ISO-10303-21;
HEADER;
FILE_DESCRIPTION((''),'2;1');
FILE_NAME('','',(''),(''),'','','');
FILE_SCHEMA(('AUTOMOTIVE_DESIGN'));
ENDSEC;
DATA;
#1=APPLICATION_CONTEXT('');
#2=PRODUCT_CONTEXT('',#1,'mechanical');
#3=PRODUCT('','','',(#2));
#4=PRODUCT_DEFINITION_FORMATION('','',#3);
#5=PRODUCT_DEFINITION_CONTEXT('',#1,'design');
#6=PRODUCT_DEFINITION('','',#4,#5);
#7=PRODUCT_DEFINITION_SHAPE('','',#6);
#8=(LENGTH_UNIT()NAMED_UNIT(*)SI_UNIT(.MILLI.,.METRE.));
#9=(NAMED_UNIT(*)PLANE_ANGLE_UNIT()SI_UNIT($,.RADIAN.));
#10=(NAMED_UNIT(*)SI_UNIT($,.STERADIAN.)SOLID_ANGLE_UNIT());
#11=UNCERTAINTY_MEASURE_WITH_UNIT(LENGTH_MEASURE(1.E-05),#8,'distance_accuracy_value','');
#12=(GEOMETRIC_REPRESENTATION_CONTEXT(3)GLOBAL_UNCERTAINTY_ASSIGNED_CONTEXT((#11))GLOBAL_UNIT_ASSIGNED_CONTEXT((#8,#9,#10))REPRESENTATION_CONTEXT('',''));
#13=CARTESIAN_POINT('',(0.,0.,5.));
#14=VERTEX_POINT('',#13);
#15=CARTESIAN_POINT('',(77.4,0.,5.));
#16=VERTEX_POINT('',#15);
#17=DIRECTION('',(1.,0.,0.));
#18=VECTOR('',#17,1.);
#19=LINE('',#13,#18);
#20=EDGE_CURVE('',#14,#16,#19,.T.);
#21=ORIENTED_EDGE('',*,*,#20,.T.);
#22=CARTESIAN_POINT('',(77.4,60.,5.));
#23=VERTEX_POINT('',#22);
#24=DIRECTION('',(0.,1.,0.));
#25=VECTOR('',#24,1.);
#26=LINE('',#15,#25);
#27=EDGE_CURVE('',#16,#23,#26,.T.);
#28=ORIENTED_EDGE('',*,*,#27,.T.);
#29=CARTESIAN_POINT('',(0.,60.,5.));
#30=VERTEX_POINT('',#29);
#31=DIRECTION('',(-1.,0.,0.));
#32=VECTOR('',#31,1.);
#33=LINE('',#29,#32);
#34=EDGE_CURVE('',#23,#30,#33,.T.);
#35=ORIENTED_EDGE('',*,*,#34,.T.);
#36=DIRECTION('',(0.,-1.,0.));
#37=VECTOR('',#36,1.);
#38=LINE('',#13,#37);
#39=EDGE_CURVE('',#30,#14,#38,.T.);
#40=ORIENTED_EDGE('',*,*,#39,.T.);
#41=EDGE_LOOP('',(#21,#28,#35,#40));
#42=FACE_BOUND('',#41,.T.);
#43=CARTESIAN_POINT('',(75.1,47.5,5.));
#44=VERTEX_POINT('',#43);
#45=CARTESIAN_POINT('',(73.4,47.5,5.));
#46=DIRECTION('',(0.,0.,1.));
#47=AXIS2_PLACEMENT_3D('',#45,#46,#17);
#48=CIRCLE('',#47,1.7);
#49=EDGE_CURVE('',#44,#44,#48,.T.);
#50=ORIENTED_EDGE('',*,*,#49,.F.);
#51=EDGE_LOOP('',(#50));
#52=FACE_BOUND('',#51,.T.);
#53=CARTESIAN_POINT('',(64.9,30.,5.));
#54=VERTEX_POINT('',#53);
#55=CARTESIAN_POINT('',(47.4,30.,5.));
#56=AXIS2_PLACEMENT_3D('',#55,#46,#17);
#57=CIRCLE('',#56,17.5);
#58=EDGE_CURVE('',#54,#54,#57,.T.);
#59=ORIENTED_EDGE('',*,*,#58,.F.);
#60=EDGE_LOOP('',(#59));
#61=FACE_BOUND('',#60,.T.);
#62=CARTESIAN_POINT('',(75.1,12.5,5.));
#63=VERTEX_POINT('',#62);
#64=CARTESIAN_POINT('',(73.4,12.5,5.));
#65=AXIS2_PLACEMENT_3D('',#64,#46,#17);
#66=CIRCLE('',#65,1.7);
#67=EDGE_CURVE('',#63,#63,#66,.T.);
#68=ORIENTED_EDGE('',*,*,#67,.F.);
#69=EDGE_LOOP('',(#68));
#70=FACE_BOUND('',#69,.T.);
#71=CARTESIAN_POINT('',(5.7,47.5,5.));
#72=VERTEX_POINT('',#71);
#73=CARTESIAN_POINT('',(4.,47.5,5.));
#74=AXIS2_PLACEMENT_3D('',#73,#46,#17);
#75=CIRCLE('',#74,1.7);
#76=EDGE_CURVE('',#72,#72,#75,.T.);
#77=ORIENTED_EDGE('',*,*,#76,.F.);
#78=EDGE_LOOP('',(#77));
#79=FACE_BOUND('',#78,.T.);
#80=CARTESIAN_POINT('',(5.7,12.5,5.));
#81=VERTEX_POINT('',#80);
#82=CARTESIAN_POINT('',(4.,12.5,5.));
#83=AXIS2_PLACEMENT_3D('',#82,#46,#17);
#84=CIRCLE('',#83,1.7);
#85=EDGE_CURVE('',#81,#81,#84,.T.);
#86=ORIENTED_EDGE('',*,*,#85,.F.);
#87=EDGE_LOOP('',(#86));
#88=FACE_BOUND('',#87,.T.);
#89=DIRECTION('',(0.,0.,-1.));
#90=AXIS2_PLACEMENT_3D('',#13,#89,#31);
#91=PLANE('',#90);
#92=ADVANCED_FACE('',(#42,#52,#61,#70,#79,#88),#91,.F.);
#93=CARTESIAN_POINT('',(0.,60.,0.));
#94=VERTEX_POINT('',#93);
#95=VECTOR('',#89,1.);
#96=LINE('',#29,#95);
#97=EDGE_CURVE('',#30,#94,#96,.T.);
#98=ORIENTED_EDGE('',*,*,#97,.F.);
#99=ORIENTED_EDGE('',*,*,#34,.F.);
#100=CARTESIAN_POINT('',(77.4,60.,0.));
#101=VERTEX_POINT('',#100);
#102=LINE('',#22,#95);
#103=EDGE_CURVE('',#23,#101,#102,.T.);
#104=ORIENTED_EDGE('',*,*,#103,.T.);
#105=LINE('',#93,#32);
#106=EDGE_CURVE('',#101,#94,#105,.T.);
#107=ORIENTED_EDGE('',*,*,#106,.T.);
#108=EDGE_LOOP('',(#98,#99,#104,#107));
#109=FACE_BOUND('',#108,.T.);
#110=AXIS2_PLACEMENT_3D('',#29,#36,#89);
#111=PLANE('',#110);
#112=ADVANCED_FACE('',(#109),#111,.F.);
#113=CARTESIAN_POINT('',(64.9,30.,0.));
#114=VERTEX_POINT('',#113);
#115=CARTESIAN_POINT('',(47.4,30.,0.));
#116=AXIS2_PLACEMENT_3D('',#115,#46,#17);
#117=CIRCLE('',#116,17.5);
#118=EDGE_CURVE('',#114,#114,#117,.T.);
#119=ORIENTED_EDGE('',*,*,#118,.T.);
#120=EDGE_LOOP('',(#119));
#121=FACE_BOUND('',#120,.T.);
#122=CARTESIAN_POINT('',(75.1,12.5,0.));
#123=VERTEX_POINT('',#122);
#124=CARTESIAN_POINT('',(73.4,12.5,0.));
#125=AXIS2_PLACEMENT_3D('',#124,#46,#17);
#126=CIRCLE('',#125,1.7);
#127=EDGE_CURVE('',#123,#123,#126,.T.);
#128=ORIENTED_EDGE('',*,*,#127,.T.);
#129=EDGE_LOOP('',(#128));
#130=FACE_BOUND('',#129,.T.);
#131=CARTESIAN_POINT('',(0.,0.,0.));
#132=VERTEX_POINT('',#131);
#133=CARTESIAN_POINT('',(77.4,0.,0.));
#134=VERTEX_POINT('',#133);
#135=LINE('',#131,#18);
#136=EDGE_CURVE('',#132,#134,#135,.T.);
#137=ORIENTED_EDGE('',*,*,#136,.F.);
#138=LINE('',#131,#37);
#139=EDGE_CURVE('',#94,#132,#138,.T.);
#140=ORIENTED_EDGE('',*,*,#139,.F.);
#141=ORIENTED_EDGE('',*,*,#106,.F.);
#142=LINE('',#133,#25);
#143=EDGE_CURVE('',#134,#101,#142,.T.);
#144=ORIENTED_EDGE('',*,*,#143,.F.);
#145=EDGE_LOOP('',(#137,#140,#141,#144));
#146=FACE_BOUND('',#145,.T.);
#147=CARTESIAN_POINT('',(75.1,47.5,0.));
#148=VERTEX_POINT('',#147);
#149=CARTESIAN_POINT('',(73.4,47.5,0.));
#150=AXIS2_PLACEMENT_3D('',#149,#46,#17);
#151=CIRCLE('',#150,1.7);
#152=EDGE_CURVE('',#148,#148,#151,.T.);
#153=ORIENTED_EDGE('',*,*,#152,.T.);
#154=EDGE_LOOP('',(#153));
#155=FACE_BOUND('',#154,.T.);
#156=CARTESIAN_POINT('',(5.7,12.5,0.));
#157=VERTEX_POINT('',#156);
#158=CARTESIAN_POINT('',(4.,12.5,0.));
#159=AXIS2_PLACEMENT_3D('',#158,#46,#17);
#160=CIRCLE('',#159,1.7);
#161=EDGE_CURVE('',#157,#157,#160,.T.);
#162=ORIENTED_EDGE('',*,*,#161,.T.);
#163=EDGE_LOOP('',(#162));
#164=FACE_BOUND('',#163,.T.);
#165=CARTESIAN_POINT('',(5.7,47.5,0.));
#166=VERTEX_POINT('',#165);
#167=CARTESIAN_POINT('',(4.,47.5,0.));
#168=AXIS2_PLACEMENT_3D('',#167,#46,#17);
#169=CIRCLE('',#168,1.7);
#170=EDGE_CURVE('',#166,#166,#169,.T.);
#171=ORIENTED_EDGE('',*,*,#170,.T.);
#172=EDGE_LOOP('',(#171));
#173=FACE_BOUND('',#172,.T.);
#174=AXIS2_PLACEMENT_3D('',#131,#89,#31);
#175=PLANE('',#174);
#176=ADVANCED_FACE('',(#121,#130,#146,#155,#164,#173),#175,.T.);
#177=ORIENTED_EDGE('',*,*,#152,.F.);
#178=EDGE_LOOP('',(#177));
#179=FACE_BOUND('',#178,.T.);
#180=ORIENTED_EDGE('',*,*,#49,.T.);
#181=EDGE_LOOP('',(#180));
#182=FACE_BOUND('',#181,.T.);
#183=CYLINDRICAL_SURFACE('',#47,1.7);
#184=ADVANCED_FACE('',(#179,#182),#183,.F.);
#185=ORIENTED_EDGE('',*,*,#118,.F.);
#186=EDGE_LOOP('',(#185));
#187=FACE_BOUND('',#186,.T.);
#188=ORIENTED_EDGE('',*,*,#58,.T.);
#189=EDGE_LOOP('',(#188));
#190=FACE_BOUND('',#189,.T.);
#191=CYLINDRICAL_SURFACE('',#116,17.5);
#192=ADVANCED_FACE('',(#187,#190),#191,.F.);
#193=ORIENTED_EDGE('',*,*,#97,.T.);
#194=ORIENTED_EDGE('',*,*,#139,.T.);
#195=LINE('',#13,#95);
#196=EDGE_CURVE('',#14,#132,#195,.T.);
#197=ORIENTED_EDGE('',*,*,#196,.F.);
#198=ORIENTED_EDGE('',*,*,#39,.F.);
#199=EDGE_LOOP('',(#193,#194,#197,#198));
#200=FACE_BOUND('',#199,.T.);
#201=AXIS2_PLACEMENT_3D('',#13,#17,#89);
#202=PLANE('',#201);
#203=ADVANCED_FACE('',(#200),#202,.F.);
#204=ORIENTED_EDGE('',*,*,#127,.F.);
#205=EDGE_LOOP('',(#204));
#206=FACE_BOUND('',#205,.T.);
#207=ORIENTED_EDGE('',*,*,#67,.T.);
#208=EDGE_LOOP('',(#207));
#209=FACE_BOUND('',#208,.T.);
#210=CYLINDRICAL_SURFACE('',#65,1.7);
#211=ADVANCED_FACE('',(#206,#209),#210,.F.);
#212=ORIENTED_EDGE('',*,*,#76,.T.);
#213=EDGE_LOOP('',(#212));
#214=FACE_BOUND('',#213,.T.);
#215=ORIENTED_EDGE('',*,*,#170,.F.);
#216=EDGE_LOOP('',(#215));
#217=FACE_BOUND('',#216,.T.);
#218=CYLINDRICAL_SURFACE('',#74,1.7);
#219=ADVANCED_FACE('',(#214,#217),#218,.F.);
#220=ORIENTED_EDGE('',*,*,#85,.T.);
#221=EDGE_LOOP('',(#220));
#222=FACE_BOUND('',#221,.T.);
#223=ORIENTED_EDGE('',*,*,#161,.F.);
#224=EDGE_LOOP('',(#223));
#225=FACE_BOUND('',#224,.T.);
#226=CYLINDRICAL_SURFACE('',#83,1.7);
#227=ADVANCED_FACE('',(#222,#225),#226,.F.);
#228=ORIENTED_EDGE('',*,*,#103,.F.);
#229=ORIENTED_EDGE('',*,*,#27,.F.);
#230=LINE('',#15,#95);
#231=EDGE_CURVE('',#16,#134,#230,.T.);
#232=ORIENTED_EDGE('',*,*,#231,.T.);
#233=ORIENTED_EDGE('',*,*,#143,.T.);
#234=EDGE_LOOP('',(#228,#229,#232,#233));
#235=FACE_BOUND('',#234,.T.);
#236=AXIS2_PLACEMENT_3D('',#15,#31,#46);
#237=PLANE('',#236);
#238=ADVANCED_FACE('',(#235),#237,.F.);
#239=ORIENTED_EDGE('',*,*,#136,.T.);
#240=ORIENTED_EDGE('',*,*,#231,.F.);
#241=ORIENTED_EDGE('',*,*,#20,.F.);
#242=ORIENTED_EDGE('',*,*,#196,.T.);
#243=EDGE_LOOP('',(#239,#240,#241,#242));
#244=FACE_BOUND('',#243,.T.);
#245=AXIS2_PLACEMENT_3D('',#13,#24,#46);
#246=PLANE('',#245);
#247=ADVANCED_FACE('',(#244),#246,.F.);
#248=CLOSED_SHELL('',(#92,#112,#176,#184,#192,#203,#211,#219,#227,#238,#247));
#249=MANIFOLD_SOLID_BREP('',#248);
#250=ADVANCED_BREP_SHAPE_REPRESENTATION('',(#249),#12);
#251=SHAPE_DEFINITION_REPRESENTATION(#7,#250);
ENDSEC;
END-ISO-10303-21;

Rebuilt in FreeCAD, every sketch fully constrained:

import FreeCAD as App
import Part
import Sketcher
Q = App.Units.Quantity

doc = App.newDocument("Part")
params = doc.addObject("Spreadsheet::Sheet", "Params")
for row, (alias, value) in enumerate([
    ("sketch1_height", "60 mm"),
    ("sketch1_width", "77.4 mm"),
    ("pad1_length", "5 mm"),
    ("sketch2_diameter", "35 mm"),
    ("sketch3_diameter", "3.4 mm"),
    ("hole_diameter", "3.4 mm"),
], start=1):
    params.set(f"A{row}", alias)
    params.set(f"B{row}", "=" + value)
    params.setAlias(f"B{row}", alias)

body = doc.addObject("PartDesign::Body", "Body")

sketch1 = doc.addObject("Sketcher::SketchObject", "Sketch")
body.addObject(sketch1)
sketch1.AttachmentSupport = (doc.XY_Plane, [""])
sketch1.MapMode = "FlatFace"
sketch1.addGeometry(Part.LineSegment(App.Vector(0, 60, 0), App.Vector(0, 0, 0)), False)
sketch1.addGeometry(Part.LineSegment(App.Vector(0, 0, 0), App.Vector(77, 0, 0)), False)
sketch1.addGeometry(Part.LineSegment(App.Vector(77, 0, 0), App.Vector(77, 60, 0)), False)
sketch1.addGeometry(Part.LineSegment(App.Vector(77, 60, 0), App.Vector(0, 60, 0)), False)
sketch1.addConstraint(Sketcher.Constraint("Coincident", 0, 2, 1, 1))
sketch1.addConstraint(Sketcher.Constraint("Coincident", 1, 2, 2, 1))
sketch1.addConstraint(Sketcher.Constraint("Coincident", 2, 2, 3, 1))
sketch1.addConstraint(Sketcher.Constraint("Coincident", 3, 2, 0, 1))
sketch1.addConstraint(Sketcher.Constraint("Vertical", 0))
sketch1.addConstraint(Sketcher.Constraint("Horizontal", 1))
sketch1.addConstraint(Sketcher.Constraint("Vertical", 2))
sketch1.addConstraint(Sketcher.Constraint("Horizontal", 3))
sketch1.addConstraint(Sketcher.Constraint("Coincident", 0, 2, -1, 1))
sketch1.addConstraint(Sketcher.Constraint("DistanceY", 0, 2, 0, 1, Q("60 mm")))
sketch1.addConstraint(Sketcher.Constraint("DistanceX", 1, 1, 1, 2, Q("77.4 mm")))
sketch1.setExpression("Constraints[9]", "Params.sketch1_height")
sketch1.setExpression("Constraints[10]", "Params.sketch1_width")
pad1 = doc.addObject("PartDesign::Pad", "Pad")
body.addObject(pad1)
pad1.Profile = sketch1
pad1.setExpression("Length", "Params.pad1_length")

sketch2 = doc.addObject("Sketcher::SketchObject", "Sketch001")
body.addObject(sketch2)
sketch2.AttachmentSupport = (doc.XY_Plane, [""])
sketch2.MapMode = "FlatFace"
sketch2.AttachmentOffset = App.Placement(App.Vector(0, 0, 5), App.Rotation())
sketch2.addGeometry(Part.Circle(App.Vector(47, 30, 0), App.Vector(0, 0, 1), 18), False)
sketch2.addConstraint(Sketcher.Constraint("Diameter", 0, Q("35 mm")))
sketch2.addConstraint(Sketcher.Constraint("DistanceY", -1, 1, 0, 3, Q("30 mm")))
sketch2.addConstraint(Sketcher.Constraint("DistanceX", -1, 1, 0, 3, Q("47.4 mm")))
sketch2.setExpression("Constraints[0]", "Params.sketch2_diameter")
pocket1 = doc.addObject("PartDesign::Pocket", "Pocket")
body.addObject(pocket1)
pocket1.Profile = sketch2
pocket1.Type = "ThroughAll"

sketch3 = doc.addObject("Sketcher::SketchObject", "Sketch002")
body.addObject(sketch3)
sketch3.AttachmentSupport = (doc.XY_Plane, [""])
sketch3.MapMode = "FlatFace"
sketch3.AttachmentOffset = App.Placement(App.Vector(0, 0, 5), App.Rotation())
sketch3.addGeometry(Part.Circle(App.Vector(73.4, 47.5, 0), App.Vector(0, 0, 1), 1.7), False)
sketch3.addGeometry(Part.Circle(App.Vector(73.4, 12.5, 0), App.Vector(0, 0, 1), 1.7), False)
sketch3.addGeometry(Part.Circle(App.Vector(4, 12.5, 0), App.Vector(0, 0, 1), 1.7), False)
sketch3.addGeometry(Part.Circle(App.Vector(4, 47.5, 0), App.Vector(0, 0, 1), 1.7), False)
sketch3.addConstraint(Sketcher.Constraint("Equal", 0, 1))
sketch3.addConstraint(Sketcher.Constraint("Equal", 1, 2))
sketch3.addConstraint(Sketcher.Constraint("Equal", 2, 3))
sketch3.addConstraint(Sketcher.Constraint("Horizontal", 1, 3, 2, 3))
sketch3.addConstraint(Sketcher.Constraint("Horizontal", 0, 3, 3, 3))
sketch3.addConstraint(Sketcher.Constraint("Vertical", 0, 3, 1, 3))
sketch3.addConstraint(Sketcher.Constraint("Vertical", 2, 3, 3, 3))
sketch3.addConstraint(Sketcher.Constraint("Diameter", 0, Q("3.4 mm")))
sketch3.addConstraint(Sketcher.Constraint("DistanceX", -1, 1, 2, 3, Q("4 mm")))
sketch3.addConstraint(Sketcher.Constraint("DistanceY", 1, 3, 0, 3, Q("35 mm")))
sketch3.addConstraint(Sketcher.Constraint("DistanceX", -1, 1, 0, 3, Q("73.4 mm")))
sketch3.addConstraint(Sketcher.Constraint("DistanceY", -1, 1, 0, 3, Q("47.5 mm")))
sketch3.setExpression("Constraints[7]", "Params.sketch3_diameter")
doc.recompute()
hole = doc.addObject("PartDesign::Hole", "Hole")
body.addObject(hole)
hole.Profile = sketch3
hole.ThreadType = "None"
hole.setExpression("Diameter", "Params.hole_diameter")
hole.DepthType = "ThroughAll"

doc.recompute()
